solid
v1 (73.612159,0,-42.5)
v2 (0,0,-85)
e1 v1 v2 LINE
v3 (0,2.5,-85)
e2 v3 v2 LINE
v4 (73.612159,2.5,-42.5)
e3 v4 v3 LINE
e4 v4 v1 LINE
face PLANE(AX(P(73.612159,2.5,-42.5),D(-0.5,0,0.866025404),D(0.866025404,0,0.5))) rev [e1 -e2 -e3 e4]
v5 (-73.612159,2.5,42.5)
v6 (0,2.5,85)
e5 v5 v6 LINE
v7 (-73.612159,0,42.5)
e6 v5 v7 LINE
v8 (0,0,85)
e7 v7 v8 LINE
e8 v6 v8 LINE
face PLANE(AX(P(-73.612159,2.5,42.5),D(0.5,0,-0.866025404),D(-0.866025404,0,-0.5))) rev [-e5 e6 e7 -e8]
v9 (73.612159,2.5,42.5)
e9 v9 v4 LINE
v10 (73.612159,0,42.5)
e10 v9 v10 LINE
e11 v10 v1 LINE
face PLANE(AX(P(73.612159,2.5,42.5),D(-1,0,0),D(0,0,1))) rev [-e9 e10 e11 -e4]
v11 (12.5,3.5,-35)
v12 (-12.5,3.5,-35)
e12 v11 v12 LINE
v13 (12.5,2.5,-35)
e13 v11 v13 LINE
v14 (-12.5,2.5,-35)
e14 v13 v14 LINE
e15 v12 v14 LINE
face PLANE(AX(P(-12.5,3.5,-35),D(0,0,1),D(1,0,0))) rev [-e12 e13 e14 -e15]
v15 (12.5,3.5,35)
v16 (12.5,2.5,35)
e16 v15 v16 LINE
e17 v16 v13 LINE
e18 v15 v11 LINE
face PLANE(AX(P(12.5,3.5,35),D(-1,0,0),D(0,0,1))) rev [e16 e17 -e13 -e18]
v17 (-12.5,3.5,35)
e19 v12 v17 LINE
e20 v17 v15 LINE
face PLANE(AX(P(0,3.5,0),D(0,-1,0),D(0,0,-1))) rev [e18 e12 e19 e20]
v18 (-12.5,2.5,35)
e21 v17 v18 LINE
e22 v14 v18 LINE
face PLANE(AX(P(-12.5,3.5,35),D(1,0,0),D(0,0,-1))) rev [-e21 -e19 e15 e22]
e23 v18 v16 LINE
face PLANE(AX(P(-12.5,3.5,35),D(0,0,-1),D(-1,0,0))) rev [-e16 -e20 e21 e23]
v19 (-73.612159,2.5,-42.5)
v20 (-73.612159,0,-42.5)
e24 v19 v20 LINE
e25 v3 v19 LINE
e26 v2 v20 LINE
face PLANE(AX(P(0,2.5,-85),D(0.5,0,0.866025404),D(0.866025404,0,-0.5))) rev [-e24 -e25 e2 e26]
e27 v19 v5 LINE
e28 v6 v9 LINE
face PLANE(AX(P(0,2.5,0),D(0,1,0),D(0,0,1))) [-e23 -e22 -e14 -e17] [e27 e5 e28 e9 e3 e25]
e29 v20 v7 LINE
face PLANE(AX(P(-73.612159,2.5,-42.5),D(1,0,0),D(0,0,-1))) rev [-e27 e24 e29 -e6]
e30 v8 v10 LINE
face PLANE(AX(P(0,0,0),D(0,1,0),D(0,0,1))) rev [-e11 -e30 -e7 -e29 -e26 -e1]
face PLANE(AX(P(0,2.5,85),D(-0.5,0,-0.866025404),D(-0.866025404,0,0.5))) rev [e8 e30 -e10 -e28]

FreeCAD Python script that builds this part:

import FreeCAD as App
import Part
import Sketcher
from FreeCAD import Vector
Q = App.Units.Quantity


def add_polygon(sketch, points):
    """Adds a closed chain of lines whose ends are joined by coincident constraints."""
    first, n = sketch.GeometryCount, len(points)
    for a, b in zip(points, points[1:] + points[:1]):
        sketch.addGeometry(Part.LineSegment(App.Vector(*a, 0), App.Vector(*b, 0)), False)
    for i in range(n):
        sketch.addConstraint(Sketcher.Constraint("Coincident", first + i, 2, first + (i + 1) % n, 1))

doc = App.newDocument("Part")
body = doc.addObject("PartDesign::Body", "Body")

# Sketch on XZ plane
sketch1 = doc.addObject("Sketcher::SketchObject", "Sketch")
body.addObject(sketch1)
sketch1.AttachmentSupport = (doc.XZ_Plane, [""])
sketch1.MapMode = "FlatFace"
add_polygon(sketch1, [(73.612159, -42.5), (0, -85), (-73.612159, -42.5), (-73.612159, 42.5), (0, 85), (73.612159, 42.5)])  # lines 0-5
sketch1.addConstraint(Sketcher.Constraint("Vertical", 2))
sketch1.addConstraint(Sketcher.Constraint("Vertical", 5))
sketch1.addConstraint(Sketcher.Constraint("Symmetric", 0, 2, 3, 2, -1, 1))
sketch1.addConstraint(Sketcher.Constraint("Symmetric", 1, 2, 4, 2, -1, 1))
sketch1.addConstraint(Sketcher.Constraint("PointOnObject", 0, 2, -2))
sketch1.addConstraint(Sketcher.Constraint("Parallel", 0, 3))
sketch1.addConstraint(Sketcher.Constraint("Horizontal", 2, 2, 4, 2))
sketch1.addConstraint(Sketcher.Constraint("DistanceY", 2, 1, 2, 2, 85.0))
sketch1.addConstraint(Sketcher.Constraint("Angle", 0, Q("-150 deg")))
sketch1.addConstraint(Sketcher.Constraint("Distance", 0, 85.0))
pad1 = doc.addObject("PartDesign::Pad", "Pad")
body.addObject(pad1)
pad1.Profile = sketch1
pad1.Length = 2.5
pad1.Reversed = True

# Sketch on XZ plane
sketch2 = doc.addObject("Sketcher::SketchObject", "Sketch001")
body.addObject(sketch2)
sketch2.AttachmentSupport = (doc.XZ_Plane, [""])
sketch2.MapMode = "FlatFace"
sketch2.AttachmentOffset = App.Placement(Vector(0, 0, -2.5), App.Rotation())
add_polygon(sketch2, [(-12.5, -35), (-12.5, 35), (12.5, 35), (12.5, -35)])  # lines 0-3
sketch2.addConstraint(Sketcher.Constraint("Vertical", 0))
sketch2.addConstraint(Sketcher.Constraint("Horizontal", 1))
sketch2.addConstraint(Sketcher.Constraint("Vertical", 2))
sketch2.addConstraint(Sketcher.Constraint("Horizontal", 3))
sketch2.addConstraint(Sketcher.Constraint("Symmetric", 0, 2, 2, 2, -1, 1))
sketch2.addConstraint(Sketcher.Constraint("DistanceX", 1, 1, 1, 2, 25.0))
sketch2.addConstraint(Sketcher.Constraint("DistanceY", 0, 1, 0, 2, 70.0))
pad2 = doc.addObject("PartDesign::Pad", "Pad001")
body.addObject(pad2)
pad2.Profile = sketch2
pad2.Length = 1
pad2.Reversed = True

doc.recompute()
